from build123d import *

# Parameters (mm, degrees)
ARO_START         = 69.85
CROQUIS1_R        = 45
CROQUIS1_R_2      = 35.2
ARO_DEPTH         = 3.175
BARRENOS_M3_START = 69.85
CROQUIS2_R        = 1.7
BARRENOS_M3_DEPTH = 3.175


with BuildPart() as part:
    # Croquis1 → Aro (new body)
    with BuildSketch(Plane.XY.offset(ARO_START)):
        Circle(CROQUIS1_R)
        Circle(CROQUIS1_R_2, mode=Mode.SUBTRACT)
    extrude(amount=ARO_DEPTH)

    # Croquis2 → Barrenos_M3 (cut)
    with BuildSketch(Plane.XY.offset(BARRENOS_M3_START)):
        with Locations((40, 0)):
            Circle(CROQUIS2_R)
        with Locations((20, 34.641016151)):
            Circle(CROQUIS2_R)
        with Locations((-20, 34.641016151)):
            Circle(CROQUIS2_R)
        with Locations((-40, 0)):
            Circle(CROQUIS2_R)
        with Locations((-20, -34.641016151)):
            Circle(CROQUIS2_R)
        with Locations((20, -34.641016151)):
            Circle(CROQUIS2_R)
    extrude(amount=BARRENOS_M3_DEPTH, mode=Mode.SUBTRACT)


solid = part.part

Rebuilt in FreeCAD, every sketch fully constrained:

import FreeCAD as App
import Part
import Sketcher

V = App.Vector
Q = App.Units.Quantity

doc = App.newDocument("Part")
params = doc.addObject("Spreadsheet::Sheet", "Params")
for row, (alias, value) in enumerate([
    ("sketch1_diameter", "90 mm"),
    ("sketch1_diameter2", "70.4 mm"),
    ("pad1_length", "3.175 mm"),
    ("sketch2_diameter", "3.4 mm"),
    ("pocket1_length", "3.175 mm"),
], start=1):
    params.set(f"A{row}", alias)
    params.set(f"B{row}", "=" + value)
    params.setAlias(f"B{row}", alias)

body = doc.addObject("PartDesign::Body", "Body")

# Sketch on XY plane
sketch1 = body.newObject("Sketcher::SketchObject", "Sketch")
sketch1.AttachmentSupport = (doc.getObject("XY_Plane"), [""])
sketch1.MapMode = "FlatFace"
sketch1.AttachmentOffset = App.Placement(V(0, 0, 69.85), App.Rotation())
sketch1.addGeometry(Part.Circle(V(0, 0, 0), V(0, 0, 1), 45), False)
sketch1.addGeometry(Part.Circle(V(0, 0, 0), V(0, 0, 1), 35), False)
sketch1.addConstraint(Sketcher.Constraint("Coincident", 0, 3, -1, 1))
sketch1.addConstraint(Sketcher.Constraint("Coincident", 1, 3, -1, 1))
sketch1.addConstraint(Sketcher.Constraint("Diameter", 0, Q("90 mm")))
sketch1.addConstraint(Sketcher.Constraint("Diameter", 1, Q("70.4 mm")))
sketch1.setExpression("Constraints[2]", "Params.sketch1_diameter")
sketch1.setExpression("Constraints[3]", "Params.sketch1_diameter2")
pad1 = body.newObject("PartDesign::Pad", "Pad")
pad1.Profile = sketch1
pad1.setExpression("Length", "Params.pad1_length")

# Sketch on XY plane
sketch2 = body.newObject("Sketcher::SketchObject", "Sketch001")
sketch2.AttachmentSupport = (doc.getObject("XY_Plane"), [""])
sketch2.MapMode = "FlatFace"
sketch2.AttachmentOffset = App.Placement(V(0, 0, 69.85), App.Rotation())
sketch2.addGeometry(Part.Circle(V(40, 0, 0), V(0, 0, 1), 1.7), False)
sketch2.addGeometry(Part.Circle(V(20, 34.6, 0), V(0, 0, 1), 1.7), False)
sketch2.addGeometry(Part.Circle(V(-20, 34.6, 0), V(0, 0, 1), 1.7), False)
sketch2.addGeometry(Part.Circle(V(-40, 0, 0), V(0, 0, 1), 1.7), False)
sketch2.addGeometry(Part.Circle(V(-20, -34.6, 0), V(0, 0, 1), 1.7), False)
sketch2.addGeometry(Part.Circle(V(20, -34.6, 0), V(0, 0, 1), 1.7), False)
sketch2.addConstraint(Sketcher.Constraint("Equal", 0, 1))
sketch2.addConstraint(Sketcher.Constraint("Equal", 1, 2))
sketch2.addConstraint(Sketcher.Constraint("Equal", 2, 3))
sketch2.addConstraint(Sketcher.Constraint("Equal", 3, 4))
sketch2.addConstraint(Sketcher.Constraint("Equal", 4, 5))
sketch2.addConstraint(Sketcher.Constraint("Symmetric", 0, 3, 3, 3, -1, 1))
sketch2.addConstraint(Sketcher.Constraint("Symmetric", 1, 3, 4, 3, -1, 1))
sketch2.addConstraint(Sketcher.Constraint("Symmetric", 2, 3, 5, 3, -1, 1))
sketch2.addConstraint(Sketcher.Constraint("Symmetric", 1, 3, 2, 3, -2))
sketch2.addConstraint(Sketcher.Constraint("PointOnObject", 0, 3, -1))
sketch2.addConstraint(Sketcher.Constraint("Diameter", 0, Q("3.4 mm")))
sketch2.addConstraint(Sketcher.Constraint("DistanceX", -1, 1, 0, 3, Q("40 mm")))
sketch2.addConstraint(Sketcher.Constraint("DistanceX", -1, 1, 1, 3, Q("20 mm")))
sketch2.addConstraint(Sketcher.Constraint("DistanceY", -1, 1, 1, 3, Q("34.641016 mm")))
sketch2.setExpression("Constraints[10]", "Params.sketch2_diameter")
pocket1 = body.newObject("PartDesign::Pocket", "Pocket")
pocket1.Profile = sketch2
pocket1.setExpression("Length", "Params.pocket1_length")
pocket1.Reversed = True

doc.recompute()
